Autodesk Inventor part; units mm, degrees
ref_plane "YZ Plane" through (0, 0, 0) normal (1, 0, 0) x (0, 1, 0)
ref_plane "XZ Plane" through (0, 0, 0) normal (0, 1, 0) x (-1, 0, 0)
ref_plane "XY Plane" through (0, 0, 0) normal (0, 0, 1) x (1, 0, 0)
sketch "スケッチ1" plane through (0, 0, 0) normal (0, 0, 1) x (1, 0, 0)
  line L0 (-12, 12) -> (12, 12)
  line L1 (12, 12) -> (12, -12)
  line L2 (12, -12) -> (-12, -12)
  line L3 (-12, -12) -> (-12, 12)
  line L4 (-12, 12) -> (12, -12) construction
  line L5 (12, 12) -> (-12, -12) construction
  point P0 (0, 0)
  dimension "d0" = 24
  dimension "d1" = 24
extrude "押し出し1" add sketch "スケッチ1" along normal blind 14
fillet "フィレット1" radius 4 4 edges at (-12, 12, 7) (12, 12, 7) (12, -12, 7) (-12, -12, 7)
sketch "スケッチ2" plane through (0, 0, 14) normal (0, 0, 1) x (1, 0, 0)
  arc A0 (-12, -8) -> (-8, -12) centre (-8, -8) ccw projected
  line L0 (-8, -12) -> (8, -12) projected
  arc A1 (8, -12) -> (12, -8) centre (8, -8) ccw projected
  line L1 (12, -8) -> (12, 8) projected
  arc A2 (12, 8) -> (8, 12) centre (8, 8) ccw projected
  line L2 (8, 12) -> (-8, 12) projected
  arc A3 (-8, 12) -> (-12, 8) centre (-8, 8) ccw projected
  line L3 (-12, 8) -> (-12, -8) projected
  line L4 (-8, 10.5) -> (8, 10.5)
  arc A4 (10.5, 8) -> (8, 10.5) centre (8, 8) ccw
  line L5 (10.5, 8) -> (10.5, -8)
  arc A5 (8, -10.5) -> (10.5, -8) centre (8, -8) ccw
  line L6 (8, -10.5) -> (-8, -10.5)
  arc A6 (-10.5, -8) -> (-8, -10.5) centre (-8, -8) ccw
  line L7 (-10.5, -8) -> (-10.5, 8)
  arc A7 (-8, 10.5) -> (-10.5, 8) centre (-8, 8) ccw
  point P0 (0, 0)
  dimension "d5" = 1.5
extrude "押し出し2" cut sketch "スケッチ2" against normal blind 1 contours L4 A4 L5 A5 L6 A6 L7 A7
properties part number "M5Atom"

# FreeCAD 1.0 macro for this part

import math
import FreeCAD as App
import Part
import Sketcher

V = App.Vector


def edges_at(feature, points):
    """Names of the edges that pass closest to the given points."""
    edges = feature.Shape.Edges
    near = lambda p: min(range(len(edges)), key=lambda i: edges[i].distToShape(Part.Vertex(*p))[0])
    return sorted({f"Edge{near(p) + 1}" for p in points})


def add_polygon(sketch, points):
    """Adds a closed chain of lines whose ends are joined by coincident constraints."""
    first, n = sketch.GeometryCount, len(points)
    for a, b in zip(points, points[1:] + points[:1]):
        sketch.addGeometry(Part.LineSegment(App.Vector(*a, 0), App.Vector(*b, 0)), False)
    for i in range(n):
        sketch.addConstraint(Sketcher.Constraint("Coincident", first + i, 2, first + (i + 1) % n, 1))

doc = App.newDocument("Part")
params = doc.addObject("Spreadsheet::Sheet", "Params")
for row, (alias, value) in enumerate([
    ("sketch1_width", "24 mm"),
    ("pad1_length", "14 mm"),
    ("fillet_radius", "4 mm"),
    ("sketch2_radius", "2.5 mm"),
    ("sketch2_width", "16 mm"),
    ("pocket1_length", "1 mm"),
], start=1):
    params.set(f"A{row}", alias)
    params.set(f"B{row}", "=" + value)
    params.setAlias(f"B{row}", alias)

body = doc.addObject("PartDesign::Body", "Body")

# Sketch on XY plane
sketch1 = doc.addObject("Sketcher::SketchObject", "Sketch")
body.addObject(sketch1)
sketch1.AttachmentSupport = (doc.XY_Plane, [""])
sketch1.MapMode = "FlatFace"
add_polygon(sketch1, [(12, 12), (-12, 12), (-12, -12), (12, -12)])  # lines 0-3
sketch1.addConstraint([
    Sketcher.Constraint("Horizontal", 0),
    Sketcher.Constraint("Vertical", 1),
    Sketcher.Constraint("Horizontal", 2),
    Sketcher.Constraint("Vertical", 3),
    Sketcher.Constraint("Symmetric", 0, 2, 2, 2, -1, 1),
    Sketcher.Constraint("Equal", 2, 1),
    Sketcher.Constraint("DistanceX", 0, 2, 0, 1, 24.0),
])
sketch1.setExpression("Constraints[10]", "Params.sketch1_width")
pad1 = doc.addObject("PartDesign::Pad", "Pad")
body.addObject(pad1)
pad1.Profile = sketch1
pad1.setExpression("Length", "Params.pad1_length")
doc.recompute()

fillet = doc.addObject("PartDesign::Fillet", "Fillet")
body.addObject(fillet)
fillet.Base = (pad1, edges_at(pad1, [
    (-12, 12, 7),
    (12, 12, 7),
    (12, -12, 7),
    (-12, -12, 7),
]))
fillet.setExpression("Radius", "Params.fillet_radius")

# Sketch on XY plane
sketch2 = doc.addObject("Sketcher::SketchObject", "Sketch001")
body.addObject(sketch2)
sketch2.AttachmentSupport = (doc.XY_Plane, [""])
sketch2.MapMode = "FlatFace"
sketch2.AttachmentOffset = App.Placement(V(0, 0, 14), App.Rotation())
sketch2.addGeometry([
    Part.LineSegment(V(8, 10.5, 0), V(-8, 10.5, 0)),  # 0
    Part.ArcOfCircle(Part.Circle(V(-8, 8, 0), V(0, 0, 1), 2.5), math.radians(90), math.radians(180)),  # 1
    Part.LineSegment(V(-10.5, 8, 0), V(-10.5, -8, 0)),  # 2
    Part.ArcOfCircle(Part.Circle(V(-8, -8, 0), V(0, 0, 1), 2.5), math.radians(180), math.radians(270)),  # 3
    Part.LineSegment(V(-8, -10.5, 0), V(8, -10.5, 0)),  # 4
    Part.ArcOfCircle(Part.Circle(V(8, -8, 0), V(0, 0, 1), 2.5), math.radians(-90), math.radians(0)),  # 5
    Part.LineSegment(V(10.5, -8, 0), V(10.5, 8, 0)),  # 6
    Part.ArcOfCircle(Part.Circle(V(8, 8, 0), V(0, 0, 1), 2.5), math.radians(0), math.radians(90)),  # 7
], False)
sketch2.addConstraint([
    Sketcher.Constraint("Tangent", 0, 2, 1, 1),
    Sketcher.Constraint("Tangent", 1, 2, 2, 1),
    Sketcher.Constraint("Tangent", 2, 2, 3, 1),
    Sketcher.Constraint("Tangent", 3, 2, 4, 1),
    Sketcher.Constraint("Tangent", 4, 2, 5, 1),
    Sketcher.Constraint("Tangent", 5, 2, 6, 1),
    Sketcher.Constraint("Tangent", 6, 2, 7, 1),
    Sketcher.Constraint("Tangent", 7, 2, 0, 1),
    Sketcher.Constraint("Horizontal", 0),
    Sketcher.Constraint("Vertical", 2),
    Sketcher.Constraint("Horizontal", 4),
    Sketcher.Constraint("Vertical", 6),
    Sketcher.Constraint("Equal", 1, 3),
    Sketcher.Constraint("Equal", 3, 5),
    Sketcher.Constraint("Equal", 5, 7),
    Sketcher.Constraint("Symmetric", 1, 3, 5, 3, -1, 1),
    Sketcher.Constraint("Equal", 4, 2),
    Sketcher.Constraint("Radius", 1, 2.5),
    Sketcher.Constraint("DistanceX", 0, 2, 0, 1, 16.0),
])
sketch2.setExpression("Constraints[17]", "Params.sketch2_radius")
sketch2.setExpression("Constraints[18]", "Params.sketch2_width")
pocket1 = doc.addObject("PartDesign::Pocket", "Pocket")
body.addObject(pocket1)
pocket1.Profile = sketch2
pocket1.setExpression("Length", "Params.pocket1_length")

doc.recompute()
